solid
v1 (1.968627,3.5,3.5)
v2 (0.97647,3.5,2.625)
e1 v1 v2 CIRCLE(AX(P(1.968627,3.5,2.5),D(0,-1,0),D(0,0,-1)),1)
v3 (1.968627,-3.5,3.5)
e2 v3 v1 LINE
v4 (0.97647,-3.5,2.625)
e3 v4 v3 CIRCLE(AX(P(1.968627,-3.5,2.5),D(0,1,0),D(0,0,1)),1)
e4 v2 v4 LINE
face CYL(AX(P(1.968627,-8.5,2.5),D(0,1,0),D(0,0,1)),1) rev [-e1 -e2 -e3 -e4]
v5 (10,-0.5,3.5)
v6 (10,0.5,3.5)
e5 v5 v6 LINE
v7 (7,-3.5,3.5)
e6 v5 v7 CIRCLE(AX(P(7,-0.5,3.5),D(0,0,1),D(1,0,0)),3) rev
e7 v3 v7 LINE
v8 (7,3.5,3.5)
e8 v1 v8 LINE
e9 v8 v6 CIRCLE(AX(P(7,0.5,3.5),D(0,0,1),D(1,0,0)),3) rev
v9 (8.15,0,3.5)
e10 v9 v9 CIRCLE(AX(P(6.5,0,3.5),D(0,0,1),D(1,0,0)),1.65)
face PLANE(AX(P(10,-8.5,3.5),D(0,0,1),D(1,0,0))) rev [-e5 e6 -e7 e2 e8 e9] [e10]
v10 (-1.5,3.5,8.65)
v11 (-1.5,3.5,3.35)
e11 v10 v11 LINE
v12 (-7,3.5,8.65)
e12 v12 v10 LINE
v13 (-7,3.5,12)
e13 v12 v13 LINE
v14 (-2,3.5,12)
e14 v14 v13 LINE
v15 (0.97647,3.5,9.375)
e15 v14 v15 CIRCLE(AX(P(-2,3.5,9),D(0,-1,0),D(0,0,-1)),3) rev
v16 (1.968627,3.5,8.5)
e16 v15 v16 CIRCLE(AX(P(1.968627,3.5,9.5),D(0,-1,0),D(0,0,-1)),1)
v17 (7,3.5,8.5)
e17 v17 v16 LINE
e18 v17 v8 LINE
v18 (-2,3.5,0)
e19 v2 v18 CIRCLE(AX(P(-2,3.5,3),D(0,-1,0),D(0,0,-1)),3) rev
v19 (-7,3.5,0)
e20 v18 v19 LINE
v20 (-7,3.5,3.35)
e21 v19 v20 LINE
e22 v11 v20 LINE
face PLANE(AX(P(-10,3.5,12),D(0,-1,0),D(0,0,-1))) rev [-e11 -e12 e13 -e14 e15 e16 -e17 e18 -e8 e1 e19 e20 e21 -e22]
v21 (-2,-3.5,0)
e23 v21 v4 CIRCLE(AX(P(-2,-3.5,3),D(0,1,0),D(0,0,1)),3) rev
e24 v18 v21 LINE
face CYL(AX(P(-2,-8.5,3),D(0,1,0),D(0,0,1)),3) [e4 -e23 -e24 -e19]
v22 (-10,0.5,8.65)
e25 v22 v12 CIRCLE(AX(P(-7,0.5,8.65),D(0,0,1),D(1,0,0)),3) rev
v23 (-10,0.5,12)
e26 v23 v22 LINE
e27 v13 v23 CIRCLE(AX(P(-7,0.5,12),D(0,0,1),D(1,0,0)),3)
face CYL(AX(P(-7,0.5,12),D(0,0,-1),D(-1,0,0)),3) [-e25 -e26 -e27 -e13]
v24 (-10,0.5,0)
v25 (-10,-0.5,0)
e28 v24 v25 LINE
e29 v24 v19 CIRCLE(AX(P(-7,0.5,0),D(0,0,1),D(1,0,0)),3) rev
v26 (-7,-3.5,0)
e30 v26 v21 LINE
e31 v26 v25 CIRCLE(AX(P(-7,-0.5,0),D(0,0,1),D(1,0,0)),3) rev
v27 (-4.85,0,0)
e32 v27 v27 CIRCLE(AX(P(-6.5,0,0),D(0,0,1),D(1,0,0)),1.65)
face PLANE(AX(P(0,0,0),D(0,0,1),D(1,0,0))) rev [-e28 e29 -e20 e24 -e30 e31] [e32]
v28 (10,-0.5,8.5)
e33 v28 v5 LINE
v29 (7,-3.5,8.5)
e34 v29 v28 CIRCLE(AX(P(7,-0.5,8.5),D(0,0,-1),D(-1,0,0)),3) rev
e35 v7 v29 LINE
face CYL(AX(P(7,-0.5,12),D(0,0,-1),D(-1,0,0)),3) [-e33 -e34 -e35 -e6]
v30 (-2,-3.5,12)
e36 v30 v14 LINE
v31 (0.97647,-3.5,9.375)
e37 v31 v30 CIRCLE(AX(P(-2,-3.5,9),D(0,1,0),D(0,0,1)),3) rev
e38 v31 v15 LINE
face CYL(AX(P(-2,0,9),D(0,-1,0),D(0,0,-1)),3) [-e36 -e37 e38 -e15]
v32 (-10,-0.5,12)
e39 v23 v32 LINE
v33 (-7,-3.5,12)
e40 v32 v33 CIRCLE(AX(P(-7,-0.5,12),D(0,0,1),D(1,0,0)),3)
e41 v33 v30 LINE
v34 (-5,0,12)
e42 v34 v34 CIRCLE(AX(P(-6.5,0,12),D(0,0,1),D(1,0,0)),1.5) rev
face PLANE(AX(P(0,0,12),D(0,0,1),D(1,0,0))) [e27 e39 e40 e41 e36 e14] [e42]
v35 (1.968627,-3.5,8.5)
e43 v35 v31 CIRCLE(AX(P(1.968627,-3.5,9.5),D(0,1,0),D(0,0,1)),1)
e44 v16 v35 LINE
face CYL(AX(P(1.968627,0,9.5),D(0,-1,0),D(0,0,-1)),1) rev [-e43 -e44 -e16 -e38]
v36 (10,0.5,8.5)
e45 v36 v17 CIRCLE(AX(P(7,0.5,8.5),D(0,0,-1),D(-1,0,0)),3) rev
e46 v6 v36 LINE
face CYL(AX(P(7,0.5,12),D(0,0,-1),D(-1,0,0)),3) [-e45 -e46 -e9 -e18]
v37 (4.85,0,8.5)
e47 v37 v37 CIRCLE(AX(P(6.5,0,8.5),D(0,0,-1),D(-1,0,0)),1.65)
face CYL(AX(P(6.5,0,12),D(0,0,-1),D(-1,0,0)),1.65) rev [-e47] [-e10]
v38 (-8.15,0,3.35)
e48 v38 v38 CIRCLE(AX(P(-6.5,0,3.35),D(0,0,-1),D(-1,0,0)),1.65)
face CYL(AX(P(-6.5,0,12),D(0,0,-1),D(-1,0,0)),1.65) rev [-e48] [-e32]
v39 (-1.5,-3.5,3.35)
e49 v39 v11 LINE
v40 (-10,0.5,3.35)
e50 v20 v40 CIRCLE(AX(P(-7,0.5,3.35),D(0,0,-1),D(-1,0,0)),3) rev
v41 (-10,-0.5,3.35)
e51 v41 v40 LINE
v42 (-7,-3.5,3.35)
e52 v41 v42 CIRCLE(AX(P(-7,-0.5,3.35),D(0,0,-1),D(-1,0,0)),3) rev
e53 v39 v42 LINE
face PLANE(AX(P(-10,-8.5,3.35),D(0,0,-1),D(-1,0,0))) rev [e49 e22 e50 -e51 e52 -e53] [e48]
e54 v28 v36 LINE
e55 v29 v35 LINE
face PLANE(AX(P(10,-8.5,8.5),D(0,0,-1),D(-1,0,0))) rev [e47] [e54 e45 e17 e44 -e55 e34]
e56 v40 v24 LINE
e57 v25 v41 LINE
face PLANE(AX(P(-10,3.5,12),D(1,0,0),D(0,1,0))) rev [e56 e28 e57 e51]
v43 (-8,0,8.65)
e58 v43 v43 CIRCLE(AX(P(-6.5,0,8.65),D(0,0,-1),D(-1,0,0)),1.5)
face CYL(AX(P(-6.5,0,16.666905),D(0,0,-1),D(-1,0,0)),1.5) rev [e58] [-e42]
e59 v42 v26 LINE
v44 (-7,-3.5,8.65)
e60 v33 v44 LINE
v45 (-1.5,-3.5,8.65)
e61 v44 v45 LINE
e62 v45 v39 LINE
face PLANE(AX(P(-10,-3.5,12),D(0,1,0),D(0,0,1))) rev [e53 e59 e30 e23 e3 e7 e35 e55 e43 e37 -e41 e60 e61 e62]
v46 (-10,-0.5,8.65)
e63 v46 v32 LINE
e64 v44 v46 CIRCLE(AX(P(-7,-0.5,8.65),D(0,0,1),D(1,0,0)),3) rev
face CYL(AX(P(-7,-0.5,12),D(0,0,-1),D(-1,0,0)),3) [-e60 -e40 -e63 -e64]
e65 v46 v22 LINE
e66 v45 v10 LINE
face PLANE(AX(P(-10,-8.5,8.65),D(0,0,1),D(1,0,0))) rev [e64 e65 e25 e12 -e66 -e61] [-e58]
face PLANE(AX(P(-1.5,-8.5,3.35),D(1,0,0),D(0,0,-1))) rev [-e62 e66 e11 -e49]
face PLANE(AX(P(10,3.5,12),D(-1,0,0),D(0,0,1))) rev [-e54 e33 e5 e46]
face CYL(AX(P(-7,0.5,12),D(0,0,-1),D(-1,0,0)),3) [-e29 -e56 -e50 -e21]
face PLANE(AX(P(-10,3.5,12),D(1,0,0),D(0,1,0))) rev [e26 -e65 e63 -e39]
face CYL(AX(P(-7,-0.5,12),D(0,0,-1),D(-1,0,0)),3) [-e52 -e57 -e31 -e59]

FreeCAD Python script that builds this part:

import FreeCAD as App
import Part
import Sketcher
from FreeCAD import Vector


def edges_at(feature, points):
    """Names of the edges that pass closest to the given points."""
    edges = feature.Shape.Edges
    near = lambda p: min(range(len(edges)), key=lambda i: edges[i].distToShape(Part.Vertex(*p))[0])
    return sorted({f"Edge{near(p) + 1}" for p in points})

doc = App.newDocument("Part")
body = doc.addObject("PartDesign::Body", "Body")

# Sketch on XY plane
sketch1 = body.newObject("Sketcher::SketchObject", "Sketch")
sketch1.AttachmentSupport = (doc.getObject("XY_Plane"), [""])
sketch1.MapMode = "FlatFace"
sketch1.addGeometry(Part.LineSegment(Vector(-10, 3.5, 0), Vector(-10, -3.5, 0)), False)
sketch1.addGeometry(Part.LineSegment(Vector(-10, -3.5, 0), Vector(10, -3.5, 0)), False)
sketch1.addGeometry(Part.LineSegment(Vector(10, -3.5, 0), Vector(10, 3.5, 0)), False)
sketch1.addGeometry(Part.LineSegment(Vector(10, 3.5, 0), Vector(-10, 3.5, 0)), False)
sketch1.addGeometry(Part.Circle(Vector(-6.5, 0, 0), Vector(0, 0, 1), 1.6), False)
sketch1.addGeometry(Part.Circle(Vector(6.5, 0, 0), Vector(0, 0, 1), 1.6), False)
sketch1.addConstraint(Sketcher.Constraint("Coincident", 0, 2, 1, 1))
sketch1.addConstraint(Sketcher.Constraint("Coincident", 1, 2, 2, 1))
sketch1.addConstraint(Sketcher.Constraint("Coincident", 2, 2, 3, 1))
sketch1.addConstraint(Sketcher.Constraint("Coincident", 3, 2, 0, 1))
sketch1.addConstraint(Sketcher.Constraint("Vertical", 0))
sketch1.addConstraint(Sketcher.Constraint("Horizontal", 1))
sketch1.addConstraint(Sketcher.Constraint("Vertical", 2))
sketch1.addConstraint(Sketcher.Constraint("Horizontal", 3))
sketch1.addConstraint(Sketcher.Constraint("Equal", 4, 5))
sketch1.addConstraint(Sketcher.Constraint("Symmetric", 4, 3, 5, 3, -1, 1))
sketch1.addConstraint(Sketcher.Constraint("Symmetric", 0, 2, 2, 2, -1, 1))
sketch1.addConstraint(Sketcher.Constraint("PointOnObject", 4, 3, -1))
sketch1.addConstraint(Sketcher.Constraint("Diameter", 4, 3.3))
sketch1.addConstraint(Sketcher.Constraint("DistanceX", 1, 1, 1, 2, 20.0))
sketch1.addConstraint(Sketcher.Constraint("DistanceY", 0, 2, 0, 1, 7.0))
sketch1.addConstraint(Sketcher.Constraint("DistanceX", 4, 3, 5, 3, 13.0))
pad1 = body.newObject("PartDesign::Pad", "Pad")
pad1.Profile = sketch1
pad1.Length = 12

# Sketch on XZ plane
sketch2 = body.newObject("Sketcher::SketchObject", "Sketch001")
sketch2.AttachmentSupport = (doc.getObject("XZ_Plane"), [""])
sketch2.MapMode = "FlatFace"
sketch2.AttachmentOffset = App.Placement(Vector(0, 0, -3.5), App.Rotation())
sketch2.addGeometry(Part.LineSegment(Vector(-10, 3, 0), Vector(-10, 9, 0)), False)
sketch2.addGeometry(Part.LineSegment(Vector(-10, 9, 0), Vector(-2, 9, 0)), False)
sketch2.addGeometry(Part.LineSegment(Vector(-2, 9, 0), Vector(-2, 3, 0)), False)
sketch2.addGeometry(Part.LineSegment(Vector(-2, 3, 0), Vector(-10, 3, 0)), False)
sketch2.addConstraint(Sketcher.Constraint("Coincident", 0, 2, 1, 1))
sketch2.addConstraint(Sketcher.Constraint("Coincident", 1, 2, 2, 1))
sketch2.addConstraint(Sketcher.Constraint("Coincident", 2, 2, 3, 1))
sketch2.addConstraint(Sketcher.Constraint("Coincident", 3, 2, 0, 1))
sketch2.addConstraint(Sketcher.Constraint("Vertical", 0))
sketch2.addConstraint(Sketcher.Constraint("Horizontal", 1))
sketch2.addConstraint(Sketcher.Constraint("Vertical", 2))
sketch2.addConstraint(Sketcher.Constraint("Horizontal", 3))
sketch2.addConstraint(Sketcher.Constraint("DistanceX", 1, 1, 1, 2, 8.5))
sketch2.addConstraint(Sketcher.Constraint("DistanceY", 0, 1, 0, 2, 5.3))
sketch2.addConstraint(Sketcher.Constraint("DistanceX", 0, 2, -1, 1, 10.0))
sketch2.addConstraint(Sketcher.Constraint("DistanceY", -1, 1, 0, 2, 8.65))
pocket1 = body.newObject("PartDesign::Pocket", "Pocket")
pocket1.Profile = sketch2
pocket1.Length = 12
pocket1.Reversed = True

# Sketch on XZ plane
sketch3 = body.newObject("Sketcher::SketchObject", "Sketch002")
sketch3.AttachmentSupport = (doc.getObject("XZ_Plane"), [""])
sketch3.MapMode = "FlatFace"
sketch3.AttachmentOffset = App.Placement(Vector(0, 0, -3.5), App.Rotation())
sketch3.addGeometry(Part.LineSegment(Vector(1, 0, 0), Vector(1, 3.5, 0)), False)
sketch3.addGeometry(Part.LineSegment(Vector(1, 3.5, 0), Vector(10, 3.5, 0)), False)
sketch3.addGeometry(Part.LineSegment(Vector(10, 3.5, 0), Vector(10, 0, 0)), False)
sketch3.addGeometry(Part.LineSegment(Vector(10, 0, 0), Vector(1, 0, 0)), False)
sketch3.addGeometry(Part.LineSegment(Vector(1, 8.5, 0), Vector(1, 12, 0)), False)
sketch3.addGeometry(Part.LineSegment(Vector(1, 12, 0), Vector(10, 12, 0)), False)
sketch3.addGeometry(Part.LineSegment(Vector(10, 12, 0), Vector(10, 8.5, 0)), False)
sketch3.addGeometry(Part.LineSegment(Vector(10, 8.5, 0), Vector(1, 8.5, 0)), False)
sketch3.addConstraint(Sketcher.Constraint("Coincident", 0, 2, 1, 1))
sketch3.addConstraint(Sketcher.Constraint("Coincident", 1, 2, 2, 1))
sketch3.addConstraint(Sketcher.Constraint("Coincident", 2, 2, 3, 1))
sketch3.addConstraint(Sketcher.Constraint("Coincident", 3, 2, 0, 1))
sketch3.addConstraint(Sketcher.Constraint("Coincident", 4, 2, 5, 1))
sketch3.addConstraint(Sketcher.Constraint("Coincident", 5, 2, 6, 1))
sketch3.addConstraint(Sketcher.Constraint("Coincident", 6, 2, 7, 1))
sketch3.addConstraint(Sketcher.Constraint("Coincident", 7, 2, 4, 1))
sketch3.addConstraint(Sketcher.Constraint("Vertical", 0))
sketch3.addConstraint(Sketcher.Constraint("Horizontal", 1))
sketch3.addConstraint(Sketcher.Constraint("Vertical", 2))
sketch3.addConstraint(Sketcher.Constraint("Horizontal", 3))
sketch3.addConstraint(Sketcher.Constraint("Vertical", 4))
sketch3.addConstraint(Sketcher.Constraint("Horizontal", 5))
sketch3.addConstraint(Sketcher.Constraint("Vertical", 6))
sketch3.addConstraint(Sketcher.Constraint("Horizontal", 7))
sketch3.addConstraint(Sketcher.Constraint("PointOnObject", 2, 2, -1))
sketch3.addConstraint(Sketcher.Constraint("Vertical", 3, 2, 4, 2))
sketch3.addConstraint(Sketcher.Constraint("Vertical", 2, 2, 5, 2))
sketch3.addConstraint(Sketcher.Constraint("Equal", 2, 4))
sketch3.addConstraint(Sketcher.Constraint("DistanceX", 1, 1, 1, 2, 9.0))
sketch3.addConstraint(Sketcher.Constraint("DistanceY", 0, 1, 0, 2, 3.5))
sketch3.addConstraint(Sketcher.Constraint("DistanceX", -1, 1, 0, 2, 1.0))
sketch3.addConstraint(Sketcher.Constraint("DistanceY", -1, 1, 4, 2, 12.0))
pocket2 = body.newObject("PartDesign::Pocket", "Pocket001")
pocket2.Profile = sketch3
pocket2.Length = 12
pocket2.Reversed = True
doc.recompute()

fillet = body.newObject("PartDesign::Fillet", "Fillet")
fillet.Base = (pocket2, edges_at(pocket2, [
    (-10, -3.5, 1.675),
    (-10, 3.5, 1.675),
    (10, -3.5, 6),
    (10, 3.5, 6),
    (-10, -3.5, 10.325),
    (-10, 3.5, 10.325),
]))
fillet.Radius = 3
doc.recompute()

fillet2 = body.newObject("PartDesign::Fillet", "Fillet001")
fillet2.Base = (fillet, edges_at(fillet, [(1, 0, 0), (1, 0, 12)]))
fillet2.Radius = 3
doc.recompute()

fillet3 = body.newObject("PartDesign::Fillet", "Fillet002")
fillet3.Base = (fillet2, edges_at(fillet2, [(1, 0, 3.5), (1, 0, 8.5)]))
fillet3.Radius = 1

# Sketch on XY plane
sketch4 = body.newObject("Sketcher::SketchObject", "Sketch003")
sketch4.AttachmentSupport = (doc.getObject("XY_Plane"), [""])
sketch4.MapMode = "FlatFace"
sketch4.AttachmentOffset = App.Placement(Vector(0, 0, 8.65), App.Rotation())
sketch4.addGeometry(Part.Circle(Vector(-6.5, 0, 0), Vector(0, 0, 1), 1.6), False)
sketch4.addGeometry(Part.Circle(Vector(-6.5, 0, 0), Vector(0, 0, 1), 1.5), False)
sketch4.addConstraint(Sketcher.Constraint("Coincident", 1, 3, 0, 3))
sketch4.addConstraint(Sketcher.Constraint("PointOnObject", 0, 3, -1))
sketch4.addConstraint(Sketcher.Constraint("Diameter", 1, 3.0))
sketch4.addConstraint(Sketcher.Constraint("Diameter", 0, 3.3))
sketch4.addConstraint(Sketcher.Constraint("DistanceX", 0, 3, -1, 1, 6.5))
pad2 = body.newObject("PartDesign::Pad", "Pad001")
pad2.Profile = sketch4
pad2.Length = 3.35

doc.recompute()
